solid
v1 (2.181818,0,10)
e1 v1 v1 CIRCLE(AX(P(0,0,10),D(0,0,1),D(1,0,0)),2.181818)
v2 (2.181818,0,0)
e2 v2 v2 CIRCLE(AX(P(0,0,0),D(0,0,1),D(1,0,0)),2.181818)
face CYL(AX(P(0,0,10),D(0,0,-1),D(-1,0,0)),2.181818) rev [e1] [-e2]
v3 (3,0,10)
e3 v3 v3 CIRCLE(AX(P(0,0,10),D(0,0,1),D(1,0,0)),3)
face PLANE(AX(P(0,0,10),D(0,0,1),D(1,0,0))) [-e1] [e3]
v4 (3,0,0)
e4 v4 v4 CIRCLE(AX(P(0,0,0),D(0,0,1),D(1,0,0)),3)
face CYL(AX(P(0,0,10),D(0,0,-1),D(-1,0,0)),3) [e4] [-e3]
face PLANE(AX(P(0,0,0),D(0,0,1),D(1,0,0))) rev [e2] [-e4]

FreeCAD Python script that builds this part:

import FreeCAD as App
import Part
import Sketcher
from FreeCAD import Vector
Q = App.Units.Quantity

doc = App.newDocument("Part")
body = doc.addObject("PartDesign::Body", "Body")

# Sketch on XY plane
sketch1 = body.newObject("Sketcher::SketchObject", "Sketch")
sketch1.AttachmentSupport = (doc.getObject("XY_Plane"), [""])
sketch1.MapMode = "FlatFace"
sketch1.addGeometry(Part.Circle(Vector(0, 0, 0), Vector(0, 0, 1), 3), False)
sketch1.addGeometry(Part.Circle(Vector(0, 0, 0), Vector(0, 0, 1), 2.181818), False)
sketch1.addConstraint(Sketcher.Constraint("Coincident", 0, 3, -1, 1))
sketch1.addConstraint(Sketcher.Constraint("Coincident", 1, 3, -1, 1))
sketch1.addConstraint(Sketcher.Constraint("Diameter", 0, Q("6 mm")))
sketch1.addConstraint(Sketcher.Constraint("Diameter", 1, Q("4.363636 mm")))
pad1 = body.newObject("PartDesign::Pad", "Pad")
pad1.Profile = sketch1
pad1.Length = 10

doc.recompute()
